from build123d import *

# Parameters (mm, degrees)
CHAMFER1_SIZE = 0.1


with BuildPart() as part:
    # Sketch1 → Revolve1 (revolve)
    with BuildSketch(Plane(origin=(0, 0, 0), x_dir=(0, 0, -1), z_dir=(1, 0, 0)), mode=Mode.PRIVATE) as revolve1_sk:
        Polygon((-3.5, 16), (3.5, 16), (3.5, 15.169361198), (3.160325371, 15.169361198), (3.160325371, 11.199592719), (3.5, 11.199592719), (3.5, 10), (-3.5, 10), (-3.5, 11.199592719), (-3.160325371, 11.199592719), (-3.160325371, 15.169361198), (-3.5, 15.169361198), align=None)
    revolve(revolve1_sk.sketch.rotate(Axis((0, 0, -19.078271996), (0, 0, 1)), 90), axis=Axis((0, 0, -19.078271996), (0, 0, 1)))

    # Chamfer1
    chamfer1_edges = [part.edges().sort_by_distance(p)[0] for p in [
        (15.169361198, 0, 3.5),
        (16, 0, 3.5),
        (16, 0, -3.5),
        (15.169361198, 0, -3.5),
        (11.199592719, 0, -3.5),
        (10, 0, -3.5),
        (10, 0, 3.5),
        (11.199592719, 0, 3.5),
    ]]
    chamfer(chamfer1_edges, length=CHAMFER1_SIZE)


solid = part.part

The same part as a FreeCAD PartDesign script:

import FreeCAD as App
import Part
import Sketcher


def edges_at(feature, points):
    """Names of the edges that pass closest to the given points."""
    edges = feature.Shape.Edges
    near = lambda p: min(range(len(edges)), key=lambda i: edges[i].distToShape(Part.Vertex(*p))[0])
    return sorted({f"Edge{near(p) + 1}" for p in points})

doc = App.newDocument("Part")
body = doc.addObject("PartDesign::Body", "Body")

# Sketch on YZ plane
sketch1 = body.newObject("Sketcher::SketchObject", "Sketch")
sketch1.AttachmentSupport = (doc.getObject("YZ_Plane"), [""])
sketch1.MapMode = "FlatFace"
sketch1.addGeometry([
    Part.LineSegment(App.Vector(16, -3.5, 0), App.Vector(16, 3.5, 0)),  # 0
    Part.LineSegment(App.Vector(16, 3.5, 0), App.Vector(15.17, 3.5, 0)),  # 1
    Part.LineSegment(App.Vector(15.17, 3.5, 0), App.Vector(15.17, 3.16, 0)),  # 2
    Part.LineSegment(App.Vector(15.17, 3.16, 0), App.Vector(11.2, 3.16, 0)),  # 3
    Part.LineSegment(App.Vector(11.2, 3.16, 0), App.Vector(11.2, 3.5, 0)),  # 4
    Part.LineSegment(App.Vector(11.2, 3.5, 0), App.Vector(10, 3.5, 0)),  # 5
    Part.LineSegment(App.Vector(10, 3.5, 0), App.Vector(10, -3.5, 0)),  # 6
    Part.LineSegment(App.Vector(10, -3.5, 0), App.Vector(11.2, -3.5, 0)),  # 7
    Part.LineSegment(App.Vector(11.2, -3.5, 0), App.Vector(11.2, -3.16, 0)),  # 8
    Part.LineSegment(App.Vector(11.2, -3.16, 0), App.Vector(15.17, -3.16, 0)),  # 9
    Part.LineSegment(App.Vector(15.17, -3.16, 0), App.Vector(15.17, -3.5, 0)),  # 10
    Part.LineSegment(App.Vector(15.17, -3.5, 0), App.Vector(16, -3.5, 0)),  # 11
], False)
sketch1.addConstraint([
    Sketcher.Constraint("Coincident", 0, 2, 1, 1),
    Sketcher.Constraint("Coincident", 1, 2, 2, 1),
    Sketcher.Constraint("Coincident", 2, 2, 3, 1),
    Sketcher.Constraint("Coincident", 3, 2, 4, 1),
    Sketcher.Constraint("Coincident", 4, 2, 5, 1),
    Sketcher.Constraint("Coincident", 5, 2, 6, 1),
    Sketcher.Constraint("Coincident", 6, 2, 7, 1),
    Sketcher.Constraint("Coincident", 7, 2, 8, 1),
    Sketcher.Constraint("Coincident", 8, 2, 9, 1),
    Sketcher.Constraint("Coincident", 9, 2, 10, 1),
    Sketcher.Constraint("Coincident", 10, 2, 11, 1),
    Sketcher.Constraint("Coincident", 11, 2, 0, 1),
    Sketcher.Constraint("Vertical", 0),
    Sketcher.Constraint("Horizontal", 1),
    Sketcher.Constraint("Vertical", 2),
    Sketcher.Constraint("Horizontal", 3),
    Sketcher.Constraint("Vertical", 4),
    Sketcher.Constraint("Horizontal", 5),
    Sketcher.Constraint("Vertical", 6),
    Sketcher.Constraint("Horizontal", 7),
    Sketcher.Constraint("Vertical", 8),
    Sketcher.Constraint("Horizontal", 9),
    Sketcher.Constraint("Vertical", 10),
    Sketcher.Constraint("Horizontal", 11),
    Sketcher.Constraint("Symmetric", 4, 2, 7, 2, -1),
    Sketcher.Constraint("Symmetric", 2, 2, 9, 2, -1),
    Sketcher.Constraint("Horizontal", 1, 2, 4, 2),
    Sketcher.Constraint("Horizontal", 7, 2, 10, 2),
    Sketcher.Constraint("DistanceY", 0, 1, 0, 2, 7.0),
    Sketcher.Constraint("DistanceX", -1, 1, 0, 2, 16.0),
    Sketcher.Constraint("DistanceX", -1, 1, 5, 2, 10.0),
    Sketcher.Constraint("DistanceX", 1, 2, 1, 1, 0.830639),
    Sketcher.Constraint("DistanceX", 3, 2, 3, 1, 3.969768),
    Sketcher.Constraint("DistanceY", 2, 2, 2, 1, 0.339675),
])
revolution = body.newObject("PartDesign::Revolution", "Revolution")
revolution.Profile = sketch1
revolution.ReferenceAxis = (sketch1, ["V_Axis"])
revolution.Angle = 360
doc.recompute()

chamfer = body.newObject("PartDesign::Chamfer", "Chamfer")
chamfer.Base = (revolution, edges_at(revolution, [
    (15.169, 0, 3.5),
    (16, 0, 3.5),
    (16, 0, -3.5),
    (15.169, 0, -3.5),
    (11.2, 0, -3.5),
    (10, 0, -3.5),
    (10, 0, 3.5),
    (11.2, 0, 3.5),
]))
chamfer.Size = 0.1

doc.recompute()
